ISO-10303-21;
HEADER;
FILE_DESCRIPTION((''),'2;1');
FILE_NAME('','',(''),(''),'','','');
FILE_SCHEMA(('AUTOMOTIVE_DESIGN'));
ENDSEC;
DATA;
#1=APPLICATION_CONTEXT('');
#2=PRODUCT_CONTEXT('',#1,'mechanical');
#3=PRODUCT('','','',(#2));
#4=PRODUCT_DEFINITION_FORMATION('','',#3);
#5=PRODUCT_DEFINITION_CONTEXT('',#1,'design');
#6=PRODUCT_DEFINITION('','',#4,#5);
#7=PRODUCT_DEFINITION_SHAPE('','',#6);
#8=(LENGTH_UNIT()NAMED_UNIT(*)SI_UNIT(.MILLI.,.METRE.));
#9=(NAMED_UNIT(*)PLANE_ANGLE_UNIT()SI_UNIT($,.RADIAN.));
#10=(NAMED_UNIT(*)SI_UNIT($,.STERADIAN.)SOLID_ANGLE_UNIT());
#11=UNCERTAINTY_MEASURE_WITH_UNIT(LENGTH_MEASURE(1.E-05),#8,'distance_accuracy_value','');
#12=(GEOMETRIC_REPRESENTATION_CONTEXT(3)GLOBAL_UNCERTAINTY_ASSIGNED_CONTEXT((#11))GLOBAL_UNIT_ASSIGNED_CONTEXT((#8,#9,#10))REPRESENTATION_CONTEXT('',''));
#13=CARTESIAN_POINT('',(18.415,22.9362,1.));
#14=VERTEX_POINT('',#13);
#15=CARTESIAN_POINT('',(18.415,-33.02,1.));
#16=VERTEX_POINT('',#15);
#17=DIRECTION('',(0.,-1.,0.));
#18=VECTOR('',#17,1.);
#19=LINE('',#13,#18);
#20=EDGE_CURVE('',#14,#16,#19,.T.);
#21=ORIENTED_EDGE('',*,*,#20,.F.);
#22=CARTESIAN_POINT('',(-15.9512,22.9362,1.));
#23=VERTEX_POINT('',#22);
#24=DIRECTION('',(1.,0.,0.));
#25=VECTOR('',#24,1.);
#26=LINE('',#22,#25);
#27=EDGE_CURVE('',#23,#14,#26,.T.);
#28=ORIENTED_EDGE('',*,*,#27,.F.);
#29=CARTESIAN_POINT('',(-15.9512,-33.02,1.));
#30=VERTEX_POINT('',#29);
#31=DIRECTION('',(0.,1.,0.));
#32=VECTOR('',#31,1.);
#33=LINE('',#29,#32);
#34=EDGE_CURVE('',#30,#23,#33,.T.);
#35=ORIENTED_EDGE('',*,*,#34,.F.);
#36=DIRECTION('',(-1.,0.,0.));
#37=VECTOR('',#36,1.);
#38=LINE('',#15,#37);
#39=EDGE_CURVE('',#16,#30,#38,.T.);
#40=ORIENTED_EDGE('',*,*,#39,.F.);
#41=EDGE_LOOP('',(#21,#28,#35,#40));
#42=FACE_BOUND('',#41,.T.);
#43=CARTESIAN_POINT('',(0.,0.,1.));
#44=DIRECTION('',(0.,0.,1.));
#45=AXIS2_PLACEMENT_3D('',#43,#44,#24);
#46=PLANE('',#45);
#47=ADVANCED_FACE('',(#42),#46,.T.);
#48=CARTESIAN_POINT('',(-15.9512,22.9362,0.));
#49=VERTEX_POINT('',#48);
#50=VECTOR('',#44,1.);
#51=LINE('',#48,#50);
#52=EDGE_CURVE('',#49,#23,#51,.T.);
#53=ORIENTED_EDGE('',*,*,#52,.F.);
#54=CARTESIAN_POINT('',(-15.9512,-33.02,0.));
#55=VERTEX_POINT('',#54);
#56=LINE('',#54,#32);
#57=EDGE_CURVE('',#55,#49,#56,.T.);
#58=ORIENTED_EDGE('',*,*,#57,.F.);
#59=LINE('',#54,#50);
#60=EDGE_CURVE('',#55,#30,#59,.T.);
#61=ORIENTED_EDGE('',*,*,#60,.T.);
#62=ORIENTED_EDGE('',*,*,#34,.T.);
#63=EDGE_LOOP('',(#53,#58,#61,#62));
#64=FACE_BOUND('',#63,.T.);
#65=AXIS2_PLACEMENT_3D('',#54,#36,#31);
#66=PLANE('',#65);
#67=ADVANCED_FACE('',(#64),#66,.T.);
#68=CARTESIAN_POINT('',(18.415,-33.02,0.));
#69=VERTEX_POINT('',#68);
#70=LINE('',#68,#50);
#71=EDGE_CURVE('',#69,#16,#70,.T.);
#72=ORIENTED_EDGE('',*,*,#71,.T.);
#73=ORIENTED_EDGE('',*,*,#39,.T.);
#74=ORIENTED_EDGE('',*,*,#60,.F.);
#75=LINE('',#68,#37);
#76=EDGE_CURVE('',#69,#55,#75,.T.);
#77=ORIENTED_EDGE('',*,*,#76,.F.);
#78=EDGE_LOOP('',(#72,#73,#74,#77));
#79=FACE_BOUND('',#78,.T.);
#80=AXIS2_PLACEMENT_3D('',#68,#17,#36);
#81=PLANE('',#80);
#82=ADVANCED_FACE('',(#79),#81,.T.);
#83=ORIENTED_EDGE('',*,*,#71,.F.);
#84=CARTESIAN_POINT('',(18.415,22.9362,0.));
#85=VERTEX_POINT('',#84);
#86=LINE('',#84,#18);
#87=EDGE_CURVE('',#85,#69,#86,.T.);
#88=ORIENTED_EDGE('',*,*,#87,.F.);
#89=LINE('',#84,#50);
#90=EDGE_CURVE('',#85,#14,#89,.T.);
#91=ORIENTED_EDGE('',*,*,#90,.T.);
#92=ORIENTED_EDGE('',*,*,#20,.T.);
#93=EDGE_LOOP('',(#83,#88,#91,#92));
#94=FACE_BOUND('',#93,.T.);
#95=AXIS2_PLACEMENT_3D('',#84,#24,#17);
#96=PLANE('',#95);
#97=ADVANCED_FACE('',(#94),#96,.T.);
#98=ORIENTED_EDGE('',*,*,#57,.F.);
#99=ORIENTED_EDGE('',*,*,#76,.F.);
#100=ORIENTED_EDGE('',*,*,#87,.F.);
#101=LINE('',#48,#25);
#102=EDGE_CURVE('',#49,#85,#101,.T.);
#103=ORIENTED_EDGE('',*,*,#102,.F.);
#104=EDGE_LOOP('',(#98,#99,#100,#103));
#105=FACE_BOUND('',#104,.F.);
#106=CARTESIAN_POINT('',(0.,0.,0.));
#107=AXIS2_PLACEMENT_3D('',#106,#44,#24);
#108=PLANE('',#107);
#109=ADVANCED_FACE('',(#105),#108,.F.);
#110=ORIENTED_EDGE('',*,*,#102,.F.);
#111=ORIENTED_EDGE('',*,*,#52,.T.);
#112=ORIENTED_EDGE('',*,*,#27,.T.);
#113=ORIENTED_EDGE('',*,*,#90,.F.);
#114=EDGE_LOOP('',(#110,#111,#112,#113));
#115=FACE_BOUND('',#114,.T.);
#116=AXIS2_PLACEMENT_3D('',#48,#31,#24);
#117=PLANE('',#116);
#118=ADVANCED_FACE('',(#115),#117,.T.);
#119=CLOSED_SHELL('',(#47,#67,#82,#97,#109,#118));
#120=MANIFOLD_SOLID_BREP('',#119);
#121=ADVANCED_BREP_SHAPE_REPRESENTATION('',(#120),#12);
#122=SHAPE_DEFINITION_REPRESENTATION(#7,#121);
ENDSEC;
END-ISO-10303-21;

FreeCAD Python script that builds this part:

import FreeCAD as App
import Part
import Sketcher
Q = App.Units.Quantity

doc = App.newDocument("Part")
body = doc.addObject("PartDesign::Body", "Body")

# Sketch on XY plane
sketch1 = body.newObject("Sketcher::SketchObject", "Sketch")
sketch1.AttachmentSupport = (doc.getObject("XY_Plane"), [""])
sketch1.MapMode = "FlatFace"
sketch1.addGeometry(Part.LineSegment(App.Vector(18, 23, 0), App.Vector(-16, 23, 0)), False)
sketch1.addGeometry(Part.LineSegment(App.Vector(-16, 23, 0), App.Vector(-16, -33, 0)), False)
sketch1.addGeometry(Part.LineSegment(App.Vector(-16, -33, 0), App.Vector(18, -33, 0)), False)
sketch1.addGeometry(Part.LineSegment(App.Vector(18, -33, 0), App.Vector(18, 23, 0)), False)
sketch1.addConstraint(Sketcher.Constraint("Coincident", 0, 2, 1, 1))
sketch1.addConstraint(Sketcher.Constraint("Coincident", 1, 2, 2, 1))
sketch1.addConstraint(Sketcher.Constraint("Coincident", 2, 2, 3, 1))
sketch1.addConstraint(Sketcher.Constraint("Coincident", 3, 2, 0, 1))
sketch1.addConstraint(Sketcher.Constraint("Horizontal", 0))
sketch1.addConstraint(Sketcher.Constraint("Vertical", 1))
sketch1.addConstraint(Sketcher.Constraint("Horizontal", 2))
sketch1.addConstraint(Sketcher.Constraint("Vertical", 3))
sketch1.addConstraint(Sketcher.Constraint("DistanceY", 1, 2, -1, 1, Q("1.3 in")))
sketch1.addConstraint(Sketcher.Constraint("DistanceX", 0, 2, 0, 1, Q("1.353 in")))
sketch1.addConstraint(Sketcher.Constraint("DistanceY", 1, 2, 1, 1, Q("2.203 in")))
sketch1.addConstraint(Sketcher.Constraint("DistanceX", 0, 2, -1, 1, Q("0.628 in")))
pad1 = body.newObject("PartDesign::Pad", "Pad")
pad1.Profile = sketch1
pad1.Length = 1

doc.recompute()
